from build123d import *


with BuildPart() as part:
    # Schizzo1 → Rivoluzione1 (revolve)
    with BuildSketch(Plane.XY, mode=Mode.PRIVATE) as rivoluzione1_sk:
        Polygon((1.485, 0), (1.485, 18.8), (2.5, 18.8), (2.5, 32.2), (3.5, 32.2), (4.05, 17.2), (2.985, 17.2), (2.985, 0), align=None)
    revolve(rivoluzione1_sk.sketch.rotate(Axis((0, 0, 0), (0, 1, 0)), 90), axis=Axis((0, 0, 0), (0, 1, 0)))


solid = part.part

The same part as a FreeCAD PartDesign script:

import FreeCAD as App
import Part
import Sketcher
Q = App.Units.Quantity

doc = App.newDocument("Part")
body = doc.addObject("PartDesign::Body", "Body")

sketch1 = body.newObject("Sketcher::SketchObject", "Sketch")
sketch1.AttachmentSupport = (doc.getObject("XY_Plane"), [""])
sketch1.MapMode = "FlatFace"
sketch1.addGeometry([
    Part.LineSegment(App.Vector(1.5, 18.8, 0), App.Vector(1.5, 0, 0)),
    Part.LineSegment(App.Vector(1.5, 0, 0), App.Vector(3, 0, 0)),
    Part.LineSegment(App.Vector(3, 0, 0), App.Vector(3, 17.2, 0)),
    Part.LineSegment(App.Vector(3, 17.2, 0), App.Vector(4, 17.2, 0)),
    Part.LineSegment(App.Vector(4, 17.2, 0), App.Vector(3.5, 32.2, 0)),
    Part.LineSegment(App.Vector(3.5, 32.2, 0), App.Vector(2.5, 32.2, 0)),
    Part.LineSegment(App.Vector(2.5, 32.2, 0), App.Vector(2.5, 18.8, 0)),
    Part.LineSegment(App.Vector(2.5, 18.8, 0), App.Vector(1.5, 18.8, 0)),
], False)
sketch1.addConstraint([
    Sketcher.Constraint("Coincident", 0, 2, 1, 1),
    Sketcher.Constraint("Coincident", 1, 2, 2, 1),
    Sketcher.Constraint("Coincident", 2, 2, 3, 1),
    Sketcher.Constraint("Coincident", 3, 2, 4, 1),
    Sketcher.Constraint("Coincident", 4, 2, 5, 1),
    Sketcher.Constraint("Coincident", 5, 2, 6, 1),
    Sketcher.Constraint("Coincident", 6, 2, 7, 1),
    Sketcher.Constraint("Coincident", 7, 2, 0, 1),
    Sketcher.Constraint("Vertical", 0),
    Sketcher.Constraint("Horizontal", 1),
    Sketcher.Constraint("Vertical", 2),
    Sketcher.Constraint("Horizontal", 3),
    Sketcher.Constraint("Horizontal", 5),
    Sketcher.Constraint("Vertical", 6),
    Sketcher.Constraint("Horizontal", 7),
    Sketcher.Constraint("PointOnObject", 0, 2, -1),
    Sketcher.Constraint("DistanceX", 5, 2, 5, 1, Q("1 mm")),
    Sketcher.Constraint("DistanceX", 1, 1, 1, 2, Q("1.5 mm")),
    Sketcher.Constraint("DistanceY", 0, 2, 0, 1, Q("18.8 mm")),
    Sketcher.Constraint("DistanceY", 2, 1, 2, 2, Q("17.2 mm")),
    Sketcher.Constraint("DistanceY", 6, 2, 6, 1, Q("13.4 mm")),
    Sketcher.Constraint("DistanceX", -1, 1, 4, 2, Q("3.5 mm")),
    Sketcher.Constraint("DistanceX", 3, 1, 3, 2, Q("1.065 mm")),
    Sketcher.Constraint("DistanceX", 7, 2, 7, 1, Q("1.015 mm")),
])
revolution = body.newObject("PartDesign::Revolution", "Revolution")
revolution.Profile = sketch1
revolution.ReferenceAxis = (sketch1, ["V_Axis"])
revolution.Angle = 360

doc.recompute()
